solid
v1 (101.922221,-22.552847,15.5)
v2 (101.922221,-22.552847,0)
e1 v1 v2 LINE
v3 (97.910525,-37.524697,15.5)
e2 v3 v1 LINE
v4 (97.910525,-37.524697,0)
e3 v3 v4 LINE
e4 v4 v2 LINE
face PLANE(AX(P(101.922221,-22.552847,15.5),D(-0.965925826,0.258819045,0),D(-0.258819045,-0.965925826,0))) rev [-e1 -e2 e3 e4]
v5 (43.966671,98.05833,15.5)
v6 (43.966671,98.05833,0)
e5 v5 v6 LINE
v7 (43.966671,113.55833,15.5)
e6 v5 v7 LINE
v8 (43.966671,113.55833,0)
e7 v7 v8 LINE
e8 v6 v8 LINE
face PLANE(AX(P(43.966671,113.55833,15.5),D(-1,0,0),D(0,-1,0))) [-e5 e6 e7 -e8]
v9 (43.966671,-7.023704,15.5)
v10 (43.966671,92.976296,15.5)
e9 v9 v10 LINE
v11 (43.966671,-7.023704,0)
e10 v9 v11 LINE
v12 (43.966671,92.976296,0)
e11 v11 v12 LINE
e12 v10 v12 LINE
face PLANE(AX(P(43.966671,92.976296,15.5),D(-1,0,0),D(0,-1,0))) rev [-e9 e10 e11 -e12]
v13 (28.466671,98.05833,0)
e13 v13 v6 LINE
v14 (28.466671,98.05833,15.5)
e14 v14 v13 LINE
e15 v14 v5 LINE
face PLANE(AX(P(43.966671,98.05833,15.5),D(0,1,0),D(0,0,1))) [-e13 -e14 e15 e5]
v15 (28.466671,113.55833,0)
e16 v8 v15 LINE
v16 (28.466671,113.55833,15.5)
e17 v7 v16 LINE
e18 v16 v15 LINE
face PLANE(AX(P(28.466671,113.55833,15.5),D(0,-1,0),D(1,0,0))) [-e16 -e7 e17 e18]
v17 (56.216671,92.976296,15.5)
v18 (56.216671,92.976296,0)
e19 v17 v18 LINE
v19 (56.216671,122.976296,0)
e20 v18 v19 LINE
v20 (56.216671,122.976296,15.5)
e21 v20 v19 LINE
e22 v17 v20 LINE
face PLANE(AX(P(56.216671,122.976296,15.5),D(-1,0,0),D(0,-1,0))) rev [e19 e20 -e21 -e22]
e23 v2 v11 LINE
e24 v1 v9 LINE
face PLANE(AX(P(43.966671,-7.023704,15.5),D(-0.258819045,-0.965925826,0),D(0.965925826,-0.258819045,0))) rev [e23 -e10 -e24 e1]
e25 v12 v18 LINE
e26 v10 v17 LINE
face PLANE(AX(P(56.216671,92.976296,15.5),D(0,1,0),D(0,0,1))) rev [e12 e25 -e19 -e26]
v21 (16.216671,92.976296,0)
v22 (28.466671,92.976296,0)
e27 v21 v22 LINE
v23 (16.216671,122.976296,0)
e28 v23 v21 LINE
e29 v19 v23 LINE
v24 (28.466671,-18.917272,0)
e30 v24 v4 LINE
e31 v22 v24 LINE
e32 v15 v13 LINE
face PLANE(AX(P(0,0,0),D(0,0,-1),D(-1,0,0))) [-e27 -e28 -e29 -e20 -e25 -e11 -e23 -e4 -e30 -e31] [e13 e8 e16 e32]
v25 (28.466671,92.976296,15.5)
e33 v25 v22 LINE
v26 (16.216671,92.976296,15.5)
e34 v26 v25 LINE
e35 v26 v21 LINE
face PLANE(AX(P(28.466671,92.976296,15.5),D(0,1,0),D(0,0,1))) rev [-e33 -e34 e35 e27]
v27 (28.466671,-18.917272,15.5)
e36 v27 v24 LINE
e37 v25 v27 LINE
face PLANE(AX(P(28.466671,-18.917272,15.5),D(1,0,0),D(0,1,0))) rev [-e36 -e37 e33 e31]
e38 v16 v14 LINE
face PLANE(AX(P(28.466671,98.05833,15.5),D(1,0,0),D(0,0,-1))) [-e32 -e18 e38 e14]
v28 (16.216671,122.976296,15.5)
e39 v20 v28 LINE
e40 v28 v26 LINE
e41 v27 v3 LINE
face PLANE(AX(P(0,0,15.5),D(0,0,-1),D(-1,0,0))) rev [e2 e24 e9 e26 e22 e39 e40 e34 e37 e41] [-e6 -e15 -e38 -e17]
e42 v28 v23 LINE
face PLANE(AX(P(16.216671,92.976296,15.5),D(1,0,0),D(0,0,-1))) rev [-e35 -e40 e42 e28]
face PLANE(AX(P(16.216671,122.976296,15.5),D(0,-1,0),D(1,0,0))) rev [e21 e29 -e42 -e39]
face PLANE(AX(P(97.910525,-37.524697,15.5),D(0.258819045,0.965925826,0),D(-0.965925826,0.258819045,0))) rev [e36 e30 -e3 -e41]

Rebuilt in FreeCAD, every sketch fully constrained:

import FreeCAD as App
import Part
import Sketcher

V = App.Vector
Q = App.Units.Quantity

doc = App.newDocument("Part")
params = doc.addObject("Spreadsheet::Sheet", "Params")
for row, (alias, value) in enumerate([
    ("sketch1_width", "40 mm"),
    ("sketch1_height", "100 mm"),
    ("sketch1_height2", "30 mm"),
    ("sketch1_length", "60 mm"),
    ("sketch1_width2", "15.5 mm"),
    ("pad1_length", "15.5 mm"),
], start=1):
    params.set(f"A{row}", alias)
    params.set(f"B{row}", "=" + value)
    params.setAlias(f"B{row}", alias)

body = doc.addObject("PartDesign::Body", "Body")

# Sketch on XY plane
sketch1 = body.newObject("Sketcher::SketchObject", "Sketch")
sketch1.AttachmentSupport = (doc.getObject("XY_Plane"), [""])
sketch1.MapMode = "FlatFace"
sketch1.addGeometry([
    Part.LineSegment(V(28, 93, 0), V(28, -19, 0)),  # 0
    Part.LineSegment(V(28, -19, 0), V(98, -38, 0)),  # 1
    Part.LineSegment(V(98, -38, 0), V(102, -23, 0)),  # 2
    Part.LineSegment(V(102, -23, 0), V(44, -7, 0)),  # 3
    Part.LineSegment(V(44, -7, 0), V(44, 93, 0)),  # 4
    Part.LineSegment(V(44, 93, 0), V(56, 93, 0)),  # 5
    Part.LineSegment(V(56, 93, 0), V(56, 123, 0)),  # 6
    Part.LineSegment(V(56, 123, 0), V(16, 123, 0)),  # 7
    Part.LineSegment(V(16, 123, 0), V(16, 93, 0)),  # 8
    Part.LineSegment(V(16, 93, 0), V(28, 93, 0)),  # 9
    Part.LineSegment(V(28, 98, 0), V(28, 114, 0)),  # 10
    Part.LineSegment(V(28, 114, 0), V(44, 114, 0)),  # 11
    Part.LineSegment(V(44, 114, 0), V(44, 98, 0)),  # 12
    Part.LineSegment(V(44, 98, 0), V(28, 98, 0)),  # 13
], False)
sketch1.addConstraint([
    Sketcher.Constraint("Coincident", 0, 2, 1, 1),
    Sketcher.Constraint("Coincident", 1, 2, 2, 1),
    Sketcher.Constraint("Coincident", 2, 2, 3, 1),
    Sketcher.Constraint("Coincident", 3, 2, 4, 1),
    Sketcher.Constraint("Coincident", 4, 2, 5, 1),
    Sketcher.Constraint("Coincident", 5, 2, 6, 1),
    Sketcher.Constraint("Coincident", 6, 2, 7, 1),
    Sketcher.Constraint("Coincident", 7, 2, 8, 1),
    Sketcher.Constraint("Coincident", 8, 2, 9, 1),
    Sketcher.Constraint("Coincident", 9, 2, 0, 1),
    Sketcher.Constraint("Coincident", 10, 2, 11, 1),
    Sketcher.Constraint("Coincident", 11, 2, 12, 1),
    Sketcher.Constraint("Coincident", 12, 2, 13, 1),
    Sketcher.Constraint("Coincident", 13, 2, 10, 1),
    Sketcher.Constraint("Vertical", 0),
    Sketcher.Constraint("Vertical", 4),
    Sketcher.Constraint("Horizontal", 5),
    Sketcher.Constraint("Vertical", 6),
    Sketcher.Constraint("Horizontal", 7),
    Sketcher.Constraint("Vertical", 8),
    Sketcher.Constraint("Horizontal", 9),
    Sketcher.Constraint("Vertical", 10),
    Sketcher.Constraint("Horizontal", 11),
    Sketcher.Constraint("Vertical", 12),
    Sketcher.Constraint("Horizontal", 13),
    Sketcher.Constraint("Perpendicular", 1, 2),
    Sketcher.Constraint("Perpendicular", 2, 3),
    Sketcher.Constraint("Horizontal", 5, 2, 8, 2),
    Sketcher.Constraint("Vertical", 9, 2, 10, 2),
    Sketcher.Constraint("Vertical", 4, 2, 11, 2),
    Sketcher.Constraint("Equal", 5, 9),
    Sketcher.Constraint("Equal", 13, 10),
    Sketcher.Constraint("DistanceX", 7, 2, 7, 1, 40.0),
    Sketcher.Constraint("DistanceY", 4, 1, 4, 2, 100.0),
    Sketcher.Constraint("DistanceY", 6, 1, 6, 2, 30.0),
    Sketcher.Constraint("Angle", 1, Q("-15 deg")),
    Sketcher.Constraint("Distance", 3, 60.0),
    Sketcher.Constraint("DistanceX", 11, 1, 11, 2, 15.5),
    Sketcher.Constraint("Distance", 2, 15.5),
    Sketcher.Constraint("DistanceX", -1, 1, 0, 2, 28.466671),
    Sketcher.Constraint("DistanceY", -1, 1, 10, 2, 113.55833),
    Sketcher.Constraint("DistanceY", 0, 2, -1, 1, 18.917272),
])
sketch1.setExpression("Constraints[32]", "Params.sketch1_width")
sketch1.setExpression("Constraints[33]", "Params.sketch1_height")
sketch1.setExpression("Constraints[34]", "Params.sketch1_height2")
sketch1.setExpression("Constraints[36]", "Params.sketch1_length")
sketch1.setExpression("Constraints[37]", "Params.sketch1_width2")
pad1 = body.newObject("PartDesign::Pad", "Pad")
pad1.Profile = sketch1
pad1.setExpression("Length", "Params.pad1_length")

doc.recompute()
